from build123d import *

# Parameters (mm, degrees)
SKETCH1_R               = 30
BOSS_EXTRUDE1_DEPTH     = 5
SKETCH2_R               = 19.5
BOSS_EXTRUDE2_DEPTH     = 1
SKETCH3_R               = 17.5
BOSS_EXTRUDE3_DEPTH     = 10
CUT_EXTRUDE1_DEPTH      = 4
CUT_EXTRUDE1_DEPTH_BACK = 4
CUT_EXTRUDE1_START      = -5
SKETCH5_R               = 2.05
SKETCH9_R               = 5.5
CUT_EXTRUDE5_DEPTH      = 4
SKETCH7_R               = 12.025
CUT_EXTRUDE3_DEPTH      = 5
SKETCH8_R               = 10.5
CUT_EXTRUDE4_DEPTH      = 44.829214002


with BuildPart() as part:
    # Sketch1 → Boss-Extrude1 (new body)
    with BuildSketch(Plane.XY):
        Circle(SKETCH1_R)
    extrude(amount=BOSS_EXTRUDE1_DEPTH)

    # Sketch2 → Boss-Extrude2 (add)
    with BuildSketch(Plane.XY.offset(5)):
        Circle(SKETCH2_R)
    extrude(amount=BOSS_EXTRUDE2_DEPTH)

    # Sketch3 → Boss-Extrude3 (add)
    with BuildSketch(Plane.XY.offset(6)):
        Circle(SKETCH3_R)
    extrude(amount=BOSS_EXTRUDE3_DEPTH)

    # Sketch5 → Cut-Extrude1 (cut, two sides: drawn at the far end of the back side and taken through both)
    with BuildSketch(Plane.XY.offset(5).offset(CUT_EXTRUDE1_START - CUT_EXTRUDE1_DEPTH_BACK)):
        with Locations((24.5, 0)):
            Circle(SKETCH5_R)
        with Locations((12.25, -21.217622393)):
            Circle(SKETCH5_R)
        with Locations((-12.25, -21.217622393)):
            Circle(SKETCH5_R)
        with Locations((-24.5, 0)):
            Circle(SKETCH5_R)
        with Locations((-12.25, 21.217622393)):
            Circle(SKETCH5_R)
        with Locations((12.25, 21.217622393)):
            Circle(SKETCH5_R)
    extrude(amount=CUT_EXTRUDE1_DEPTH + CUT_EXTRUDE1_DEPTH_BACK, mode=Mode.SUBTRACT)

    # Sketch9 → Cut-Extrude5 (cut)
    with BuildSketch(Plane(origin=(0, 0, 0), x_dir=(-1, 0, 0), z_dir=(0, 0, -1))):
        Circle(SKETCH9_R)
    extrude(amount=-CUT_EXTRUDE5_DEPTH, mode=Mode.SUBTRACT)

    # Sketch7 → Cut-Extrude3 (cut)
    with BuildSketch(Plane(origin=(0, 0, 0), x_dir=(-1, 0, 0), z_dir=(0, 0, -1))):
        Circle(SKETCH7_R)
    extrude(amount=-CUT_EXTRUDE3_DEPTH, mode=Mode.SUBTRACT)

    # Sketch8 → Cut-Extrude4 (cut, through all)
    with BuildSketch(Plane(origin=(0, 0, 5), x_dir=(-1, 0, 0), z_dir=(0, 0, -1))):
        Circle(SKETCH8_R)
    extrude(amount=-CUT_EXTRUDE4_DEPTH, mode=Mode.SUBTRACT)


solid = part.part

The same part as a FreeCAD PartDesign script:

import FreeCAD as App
import Part
import Sketcher
from FreeCAD import Vector

doc = App.newDocument("Part")
body = doc.addObject("PartDesign::Body", "Body")

# Sketch on XY plane
sketch1 = body.newObject("Sketcher::SketchObject", "Sketch")
sketch1.AttachmentSupport = (doc.getObject("XY_Plane"), [""])
sketch1.MapMode = "FlatFace"
sketch1.addGeometry(Part.Circle(Vector(0, 0, 0), Vector(0, 0, 1), 30), False)
sketch1.addConstraint([
    Sketcher.Constraint("Coincident", 0, 3, -1, 1),
    Sketcher.Constraint("Diameter", 0, 60.0),
])
pad1 = body.newObject("PartDesign::Pad", "Pad")
pad1.Profile = sketch1
pad1.Length = 5

# Sketch on XY plane
sketch2 = body.newObject("Sketcher::SketchObject", "Sketch001")
sketch2.AttachmentSupport = (doc.getObject("XY_Plane"), [""])
sketch2.MapMode = "FlatFace"
sketch2.AttachmentOffset = App.Placement(Vector(0, 0, 5), App.Rotation())
sketch2.addGeometry(Part.Circle(Vector(0, 0, 0), Vector(0, 0, 1), 19.5), False)
sketch2.addConstraint([
    Sketcher.Constraint("Coincident", 0, 3, -1, 1),
    Sketcher.Constraint("Diameter", 0, 39.0),
])
pad2 = body.newObject("PartDesign::Pad", "Pad001")
pad2.Profile = sketch2
pad2.Length = 1

# Sketch on XY plane
sketch3 = body.newObject("Sketcher::SketchObject", "Sketch002")
sketch3.AttachmentSupport = (doc.getObject("XY_Plane"), [""])
sketch3.MapMode = "FlatFace"
sketch3.AttachmentOffset = App.Placement(Vector(0, 0, 6), App.Rotation())
sketch3.addGeometry(Part.Circle(Vector(0, 0, 0), Vector(0, 0, 1), 17.5), False)
sketch3.addConstraint([
    Sketcher.Constraint("Coincident", 0, 3, -1, 1),
    Sketcher.Constraint("Diameter", 0, 35.0),
])
pad3 = body.newObject("PartDesign::Pad", "Pad002")
pad3.Profile = sketch3
pad3.Length = 10

# Sketch on XY plane
sketch4 = body.newObject("Sketcher::SketchObject", "Sketch003")
sketch4.AttachmentSupport = (doc.getObject("XY_Plane"), [""])
sketch4.MapMode = "FlatFace"
sketch4.addGeometry([
    Part.Circle(Vector(24.5, 0, 0), Vector(0, 0, 1), 2.05),  # 0
    Part.Circle(Vector(12.25, -21.217622, 0), Vector(0, 0, 1), 2.05),  # 1
    Part.Circle(Vector(-12.25, -21.217622, 0), Vector(0, 0, 1), 2.05),  # 2
    Part.Circle(Vector(-24.5, 0, 0), Vector(0, 0, 1), 2.05),  # 3
    Part.Circle(Vector(-12.25, 21.217622, 0), Vector(0, 0, 1), 2.05),  # 4
    Part.Circle(Vector(12.25, 21.217622, 0), Vector(0, 0, 1), 2.05),  # 5
], False)
sketch4.addConstraint([
    Sketcher.Constraint("Equal", 0, 1),
    Sketcher.Constraint("Equal", 1, 2),
    Sketcher.Constraint("Equal", 2, 3),
    Sketcher.Constraint("Equal", 3, 4),
    Sketcher.Constraint("Equal", 4, 5),
    Sketcher.Constraint("Symmetric", 0, 3, 3, 3, -1, 1),
    Sketcher.Constraint("Symmetric", 1, 3, 4, 3, -1, 1),
    Sketcher.Constraint("Symmetric", 2, 3, 5, 3, -1, 1),
    Sketcher.Constraint("Symmetric", 1, 3, 2, 3, -2),
    Sketcher.Constraint("PointOnObject", 0, 3, -1),
    Sketcher.Constraint("Diameter", 0, 4.1),
    Sketcher.Constraint("DistanceX", 3, 3, 0, 3, 49.0),
    Sketcher.Constraint("DistanceX", 2, 3, 1, 3, 24.5),
    Sketcher.Constraint("DistanceY", 1, 3, -1, 1, 21.217622),
])
pocket1 = body.newObject("PartDesign::Pocket", "Pocket")
pocket1.Profile = sketch4
pocket1.Type = "TwoLengths"
pocket1.Length = 4
pocket1.Length2 = 4
pocket1.Reversed = True

# Sketch on XY plane
sketch5 = body.newObject("Sketcher::SketchObject", "Sketch004")
sketch5.AttachmentSupport = (doc.getObject("XY_Plane"), [""])
sketch5.MapMode = "FlatFace"
sketch5.addGeometry(Part.Circle(Vector(0, 0, 0), Vector(0, 0, 1), 5.5), False)
sketch5.addConstraint([
    Sketcher.Constraint("Coincident", 0, 3, -1, 1),
    Sketcher.Constraint("Diameter", 0, 11.0),
])
pocket2 = body.newObject("PartDesign::Pocket", "Pocket001")
pocket2.Profile = sketch5
pocket2.Length = 4
pocket2.Reversed = True

# Sketch on XY plane
sketch6 = body.newObject("Sketcher::SketchObject", "Sketch005")
sketch6.AttachmentSupport = (doc.getObject("XY_Plane"), [""])
sketch6.MapMode = "FlatFace"
sketch6.addGeometry(Part.Circle(Vector(0, 0, 0), Vector(0, 0, 1), 12.025), False)
sketch6.addConstraint([
    Sketcher.Constraint("Coincident", 0, 3, -1, 1),
    Sketcher.Constraint("Diameter", 0, 24.05),
])
pocket3 = body.newObject("PartDesign::Pocket", "Pocket002")
pocket3.Profile = sketch6
pocket3.Length = 5
pocket3.Reversed = True

# Sketch on XY plane
sketch7 = body.newObject("Sketcher::SketchObject", "Sketch006")
sketch7.AttachmentSupport = (doc.getObject("XY_Plane"), [""])
sketch7.MapMode = "FlatFace"
sketch7.AttachmentOffset = App.Placement(Vector(0, 0, 5), App.Rotation())
sketch7.addGeometry(Part.Circle(Vector(0, 0, 0), Vector(0, 0, 1), 10.5), False)
sketch7.addConstraint([
    Sketcher.Constraint("Coincident", 0, 3, -1, 1),
    Sketcher.Constraint("Diameter", 0, 21.0),
])
pocket4 = body.newObject("PartDesign::Pocket", "Pocket003")
pocket4.Profile = sketch7
pocket4.Type = "ThroughAll"
pocket4.Reversed = True

doc.recompute()
